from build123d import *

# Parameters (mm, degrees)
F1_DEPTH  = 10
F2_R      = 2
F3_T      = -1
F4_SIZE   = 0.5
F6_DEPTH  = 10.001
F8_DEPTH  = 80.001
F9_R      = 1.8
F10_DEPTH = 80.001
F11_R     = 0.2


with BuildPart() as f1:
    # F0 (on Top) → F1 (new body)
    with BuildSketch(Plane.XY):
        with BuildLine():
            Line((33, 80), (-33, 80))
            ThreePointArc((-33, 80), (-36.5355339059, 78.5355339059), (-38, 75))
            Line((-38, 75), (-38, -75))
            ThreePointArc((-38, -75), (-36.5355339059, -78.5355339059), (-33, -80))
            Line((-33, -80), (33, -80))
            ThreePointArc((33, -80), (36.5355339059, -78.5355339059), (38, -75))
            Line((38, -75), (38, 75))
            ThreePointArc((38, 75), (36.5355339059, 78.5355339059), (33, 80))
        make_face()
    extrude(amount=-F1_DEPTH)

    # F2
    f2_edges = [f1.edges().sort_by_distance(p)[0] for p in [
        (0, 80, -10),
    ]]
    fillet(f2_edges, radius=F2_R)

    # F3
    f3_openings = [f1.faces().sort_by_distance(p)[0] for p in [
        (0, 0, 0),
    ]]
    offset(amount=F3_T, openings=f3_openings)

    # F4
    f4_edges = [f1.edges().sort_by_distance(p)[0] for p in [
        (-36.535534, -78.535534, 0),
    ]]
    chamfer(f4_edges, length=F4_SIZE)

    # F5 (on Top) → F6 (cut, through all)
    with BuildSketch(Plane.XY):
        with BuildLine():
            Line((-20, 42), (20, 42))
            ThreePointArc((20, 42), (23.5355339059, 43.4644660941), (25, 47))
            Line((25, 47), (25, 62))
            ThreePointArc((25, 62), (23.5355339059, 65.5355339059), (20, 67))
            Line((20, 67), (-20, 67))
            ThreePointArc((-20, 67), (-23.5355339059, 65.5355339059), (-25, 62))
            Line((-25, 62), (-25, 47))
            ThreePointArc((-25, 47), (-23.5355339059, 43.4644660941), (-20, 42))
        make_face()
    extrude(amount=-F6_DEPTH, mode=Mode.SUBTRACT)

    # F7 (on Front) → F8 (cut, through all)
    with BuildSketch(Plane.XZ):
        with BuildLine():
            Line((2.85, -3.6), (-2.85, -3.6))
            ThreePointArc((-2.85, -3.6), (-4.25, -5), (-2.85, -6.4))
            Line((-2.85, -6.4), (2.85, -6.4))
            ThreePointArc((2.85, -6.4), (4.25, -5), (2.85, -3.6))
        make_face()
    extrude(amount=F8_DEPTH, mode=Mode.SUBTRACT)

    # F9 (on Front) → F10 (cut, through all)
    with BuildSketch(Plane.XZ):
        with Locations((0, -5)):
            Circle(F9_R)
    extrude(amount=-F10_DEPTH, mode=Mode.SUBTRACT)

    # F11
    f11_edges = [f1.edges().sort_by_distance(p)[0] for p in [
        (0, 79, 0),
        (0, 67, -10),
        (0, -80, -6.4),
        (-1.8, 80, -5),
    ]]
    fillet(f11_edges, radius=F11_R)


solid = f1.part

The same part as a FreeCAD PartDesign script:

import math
import FreeCAD as App
import Part
import Sketcher

V = App.Vector
Q = App.Units.Quantity


def edges_at(feature, points):
    """Names of the edges that pass closest to the given points."""
    edges = feature.Shape.Edges
    near = lambda p: min(range(len(edges)), key=lambda i: edges[i].distToShape(Part.Vertex(*p))[0])
    return sorted({f"Edge{near(p) + 1}" for p in points})


def faces_at(feature, points):
    """Names of the faces that lie closest to the given points."""
    faces = feature.Shape.Faces
    near = lambda p: min(range(len(faces)), key=lambda i: faces[i].distToShape(Part.Vertex(*p))[0])
    return sorted({f"Face{near(p) + 1}" for p in points})

doc = App.newDocument("Part")
body = doc.addObject("PartDesign::Body", "Body")

sketch1 = body.newObject("Sketcher::SketchObject", "Sketch")
sketch1.AttachmentSupport = (doc.getObject("XY_Plane"), [""])
sketch1.MapMode = "FlatFace"
sketch1.addGeometry(Part.LineSegment(V(33, 80, 0), V(-33, 80, 0)), False)
sketch1.addGeometry(Part.ArcOfCircle(Part.Circle(V(-33, 75, 0), V(0, 0, 1), 5), math.radians(90), math.radians(180)), False)
sketch1.addGeometry(Part.LineSegment(V(-38, 75, 0), V(-38, -75, 0)), False)
sketch1.addGeometry(Part.ArcOfCircle(Part.Circle(V(-33, -75, 0), V(0, 0, 1), 5), math.radians(180), math.radians(270)), False)
sketch1.addGeometry(Part.LineSegment(V(-33, -80, 0), V(33, -80, 0)), False)
sketch1.addGeometry(Part.ArcOfCircle(Part.Circle(V(33, -75, 0), V(0, 0, 1), 5), math.radians(-90), math.radians(0)), False)
sketch1.addGeometry(Part.LineSegment(V(38, -75, 0), V(38, 75, 0)), False)
sketch1.addGeometry(Part.ArcOfCircle(Part.Circle(V(33, 75, 0), V(0, 0, 1), 5), math.radians(0), math.radians(90)), False)
sketch1.addConstraint(Sketcher.Constraint("Tangent", 0, 2, 1, 1))
sketch1.addConstraint(Sketcher.Constraint("Tangent", 1, 2, 2, 1))
sketch1.addConstraint(Sketcher.Constraint("Tangent", 2, 2, 3, 1))
sketch1.addConstraint(Sketcher.Constraint("Tangent", 3, 2, 4, 1))
sketch1.addConstraint(Sketcher.Constraint("Tangent", 4, 2, 5, 1))
sketch1.addConstraint(Sketcher.Constraint("Tangent", 5, 2, 6, 1))
sketch1.addConstraint(Sketcher.Constraint("Tangent", 6, 2, 7, 1))
sketch1.addConstraint(Sketcher.Constraint("Tangent", 7, 2, 0, 1))
sketch1.addConstraint(Sketcher.Constraint("Horizontal", 0))
sketch1.addConstraint(Sketcher.Constraint("Vertical", 2))
sketch1.addConstraint(Sketcher.Constraint("Horizontal", 4))
sketch1.addConstraint(Sketcher.Constraint("Vertical", 6))
sketch1.addConstraint(Sketcher.Constraint("Equal", 1, 3))
sketch1.addConstraint(Sketcher.Constraint("Equal", 3, 5))
sketch1.addConstraint(Sketcher.Constraint("Equal", 5, 7))
sketch1.addConstraint(Sketcher.Constraint("Symmetric", 1, 3, 5, 3, -1, 1))
sketch1.addConstraint(Sketcher.Constraint("Radius", 1, Q("5 mm")))
sketch1.addConstraint(Sketcher.Constraint("DistanceX", 0, 2, 0, 1, Q("66 mm")))
sketch1.addConstraint(Sketcher.Constraint("DistanceY", 2, 2, 2, 1, Q("150 mm")))
pad1 = body.newObject("PartDesign::Pad", "Pad")
pad1.Profile = sketch1
pad1.Length = 10
pad1.Reversed = True
doc.recompute()

fillet = body.newObject("PartDesign::Fillet", "Fillet")
fillet.Base = (pad1, edges_at(pad1, [(0, 80, -10)]))
fillet.Radius = 2
doc.recompute()

thickness = body.newObject("PartDesign::Thickness", "Thickness")
thickness.Base = (fillet, faces_at(fillet, [(0, 0, 0)]))
thickness.Value = 1
thickness.Reversed = True
thickness.Join = "Arc"
doc.recompute()

chamfer = body.newObject("PartDesign::Chamfer", "Chamfer")
chamfer.Base = (thickness, edges_at(thickness, [(-36.536, -78.536, 0)]))
chamfer.Size = 0.5

sketch2 = body.newObject("Sketcher::SketchObject", "Sketch001")
sketch2.AttachmentSupport = (doc.getObject("XY_Plane"), [""])
sketch2.MapMode = "FlatFace"
sketch2.addGeometry(Part.LineSegment(V(-20, 42, 0), V(20, 42, 0)), False)
sketch2.addGeometry(Part.ArcOfCircle(Part.Circle(V(20, 47, 0), V(0, 0, 1), 5), math.radians(-90), math.radians(0)), False)
sketch2.addGeometry(Part.LineSegment(V(25, 47, 0), V(25, 62, 0)), False)
sketch2.addGeometry(Part.ArcOfCircle(Part.Circle(V(20, 62, 0), V(0, 0, 1), 5), math.radians(0), math.radians(90)), False)
sketch2.addGeometry(Part.LineSegment(V(20, 67, 0), V(-20, 67, 0)), False)
sketch2.addGeometry(Part.ArcOfCircle(Part.Circle(V(-20, 62, 0), V(0, 0, 1), 5), math.radians(90), math.radians(180)), False)
sketch2.addGeometry(Part.LineSegment(V(-25, 62, 0), V(-25, 47, 0)), False)
sketch2.addGeometry(Part.ArcOfCircle(Part.Circle(V(-20, 47, 0), V(0, 0, 1), 5), math.radians(180), math.radians(270)), False)
sketch2.addConstraint(Sketcher.Constraint("Tangent", 0, 2, 1, 1))
sketch2.addConstraint(Sketcher.Constraint("Tangent", 1, 2, 2, 1))
sketch2.addConstraint(Sketcher.Constraint("Tangent", 2, 2, 3, 1))
sketch2.addConstraint(Sketcher.Constraint("Tangent", 3, 2, 4, 1))
sketch2.addConstraint(Sketcher.Constraint("Tangent", 4, 2, 5, 1))
sketch2.addConstraint(Sketcher.Constraint("Tangent", 5, 2, 6, 1))
sketch2.addConstraint(Sketcher.Constraint("Tangent", 6, 2, 7, 1))
sketch2.addConstraint(Sketcher.Constraint("Tangent", 7, 2, 0, 1))
sketch2.addConstraint(Sketcher.Constraint("Horizontal", 0))
sketch2.addConstraint(Sketcher.Constraint("Vertical", 2))
sketch2.addConstraint(Sketcher.Constraint("Horizontal", 4))
sketch2.addConstraint(Sketcher.Constraint("Vertical", 6))
sketch2.addConstraint(Sketcher.Constraint("Equal", 1, 3))
sketch2.addConstraint(Sketcher.Constraint("Equal", 3, 5))
sketch2.addConstraint(Sketcher.Constraint("Equal", 5, 7))
sketch2.addConstraint(Sketcher.Constraint("Radius", 1, Q("5 mm")))
sketch2.addConstraint(Sketcher.Constraint("DistanceX", 0, 1, 0, 2, Q("40 mm")))
sketch2.addConstraint(Sketcher.Constraint("DistanceY", 2, 1, 2, 2, Q("15 mm")))
sketch2.addConstraint(Sketcher.Constraint("DistanceX", -1, 1, 1, 3, Q("20 mm")))
sketch2.addConstraint(Sketcher.Constraint("DistanceY", -1, 1, 1, 3, Q("47 mm")))
pocket1 = body.newObject("PartDesign::Pocket", "Pocket")
pocket1.Profile = sketch2
pocket1.Type = "ThroughAll"

sketch3 = body.newObject("Sketcher::SketchObject", "Sketch002")
sketch3.AttachmentSupport = (doc.getObject("XZ_Plane"), [""])
sketch3.MapMode = "FlatFace"
sketch3.addGeometry(Part.LineSegment(V(2.85, -3.6, 0), V(-2.85, -3.6, 0)), False)
sketch3.addGeometry(Part.ArcOfCircle(Part.Circle(V(-2.85, -5, 0), V(0, 0, 1), 1.4), math.radians(90), math.radians(270)), False)
sketch3.addGeometry(Part.LineSegment(V(-2.85, -6.4, 0), V(2.85, -6.4, 0)), False)
sketch3.addGeometry(Part.ArcOfCircle(Part.Circle(V(2.85, -5, 0), V(0, 0, 1), 1.4), math.radians(-90), math.radians(90)), False)
sketch3.addConstraint(Sketcher.Constraint("Tangent", 0, 2, 1, 1))
sketch3.addConstraint(Sketcher.Constraint("Tangent", 1, 2, 2, 1))
sketch3.addConstraint(Sketcher.Constraint("Tangent", 2, 2, 3, 1))
sketch3.addConstraint(Sketcher.Constraint("Tangent", 3, 2, 0, 1))
sketch3.addConstraint(Sketcher.Constraint("Horizontal", 0))
sketch3.addConstraint(Sketcher.Constraint("Horizontal", 2))
sketch3.addConstraint(Sketcher.Constraint("Radius", 1, Q("1.4 mm")))
sketch3.addConstraint(Sketcher.Constraint("DistanceX", 0, 2, 0, 1, Q("5.7 mm")))
sketch3.addConstraint(Sketcher.Constraint("DistanceY", 1, 3, -1, 1, Q("5 mm")))
sketch3.addConstraint(Sketcher.Constraint("DistanceX", 1, 3, -1, 1, Q("2.85 mm")))
pocket2 = body.newObject("PartDesign::Pocket", "Pocket001")
pocket2.Profile = sketch3
pocket2.Type = "ThroughAll"
pocket2.Reversed = True

sketch4 = body.newObject("Sketcher::SketchObject", "Sketch003")
sketch4.AttachmentSupport = (doc.getObject("XZ_Plane"), [""])
sketch4.MapMode = "FlatFace"
sketch4.addGeometry(Part.Circle(V(0, -5, 0), V(0, 0, 1), 1.8), False)
sketch4.addConstraint(Sketcher.Constraint("PointOnObject", 0, 3, -2))
sketch4.addConstraint(Sketcher.Constraint("Diameter", 0, Q("3.6 mm")))
sketch4.addConstraint(Sketcher.Constraint("DistanceY", 0, 3, -1, 1, Q("5 mm")))
pocket3 = body.newObject("PartDesign::Pocket", "Pocket002")
pocket3.Profile = sketch4
pocket3.Type = "ThroughAll"
doc.recompute()

fillet2 = body.newObject("PartDesign::Fillet", "Fillet001")
fillet2.Base = (pocket3, edges_at(pocket3, [
    (0, 79, 0),
    (0, 67, -10),
    (0, -80, -6.4),
    (-1.8, 80, -5),
]))
fillet2.Radius = 0.2

doc.recompute()
